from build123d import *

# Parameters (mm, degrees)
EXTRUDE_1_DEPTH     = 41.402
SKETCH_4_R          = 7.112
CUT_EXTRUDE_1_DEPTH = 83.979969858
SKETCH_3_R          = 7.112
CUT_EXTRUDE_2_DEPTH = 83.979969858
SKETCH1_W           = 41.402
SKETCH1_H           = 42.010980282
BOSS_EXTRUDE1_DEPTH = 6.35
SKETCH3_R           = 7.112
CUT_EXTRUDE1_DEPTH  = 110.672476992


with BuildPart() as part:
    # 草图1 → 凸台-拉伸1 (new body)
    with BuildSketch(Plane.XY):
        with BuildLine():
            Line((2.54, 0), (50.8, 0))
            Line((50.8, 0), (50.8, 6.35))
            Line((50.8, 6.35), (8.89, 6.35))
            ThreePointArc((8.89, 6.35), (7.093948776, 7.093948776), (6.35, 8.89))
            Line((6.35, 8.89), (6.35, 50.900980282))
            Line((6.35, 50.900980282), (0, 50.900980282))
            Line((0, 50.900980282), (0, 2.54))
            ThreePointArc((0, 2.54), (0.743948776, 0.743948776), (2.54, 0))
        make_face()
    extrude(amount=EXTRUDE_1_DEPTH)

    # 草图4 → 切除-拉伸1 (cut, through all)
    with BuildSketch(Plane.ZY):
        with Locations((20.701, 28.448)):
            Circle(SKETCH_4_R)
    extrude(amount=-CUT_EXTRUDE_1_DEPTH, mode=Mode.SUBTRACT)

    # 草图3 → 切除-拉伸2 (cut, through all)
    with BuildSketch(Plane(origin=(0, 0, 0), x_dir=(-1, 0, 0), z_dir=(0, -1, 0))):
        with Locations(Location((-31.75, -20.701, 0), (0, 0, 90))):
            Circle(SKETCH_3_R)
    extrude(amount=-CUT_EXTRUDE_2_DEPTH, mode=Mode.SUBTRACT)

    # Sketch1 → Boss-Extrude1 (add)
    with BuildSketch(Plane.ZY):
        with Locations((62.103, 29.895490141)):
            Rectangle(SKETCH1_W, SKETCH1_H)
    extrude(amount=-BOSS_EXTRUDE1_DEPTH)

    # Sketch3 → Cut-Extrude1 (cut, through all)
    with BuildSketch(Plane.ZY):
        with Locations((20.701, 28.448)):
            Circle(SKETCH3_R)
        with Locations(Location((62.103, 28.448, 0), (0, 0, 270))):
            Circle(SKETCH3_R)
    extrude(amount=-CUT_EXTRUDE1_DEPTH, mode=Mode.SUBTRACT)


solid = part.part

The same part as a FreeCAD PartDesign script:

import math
import FreeCAD as App
import Part
import Sketcher

V = App.Vector
Q = App.Units.Quantity


def add_polygon(sketch, points):
    """Adds a closed chain of lines whose ends are joined by coincident constraints."""
    first, n = sketch.GeometryCount, len(points)
    for a, b in zip(points, points[1:] + points[:1]):
        sketch.addGeometry(Part.LineSegment(App.Vector(*a, 0), App.Vector(*b, 0)), False)
    for i in range(n):
        sketch.addConstraint(Sketcher.Constraint("Coincident", first + i, 2, first + (i + 1) % n, 1))

doc = App.newDocument("Part")
body = doc.addObject("PartDesign::Body", "Body")

sketch1 = body.newObject("Sketcher::SketchObject", "Sketch")
sketch1.AttachmentSupport = (doc.getObject("XY_Plane"), [""])
sketch1.MapMode = "FlatFace"
sketch1.addGeometry([
    Part.LineSegment(V(2.5, 0, 0), V(50.8, 0, 0)),
    Part.LineSegment(V(50.8, 0, 0), V(50.8, 6.3, 0)),
    Part.LineSegment(V(50.8, 6.3, 0), V(8.9, 6.3, 0)),
    Part.ArcOfCircle(Part.Circle(V(8.9, 8.9, 0), V(0, 0, 1), 2.5), math.radians(-180), math.radians(-90)),
    Part.LineSegment(V(6.3, 8.9, 0), V(6.3, 50.9, 0)),
    Part.LineSegment(V(6.3, 50.9, 0), V(0, 50.9, 0)),
    Part.LineSegment(V(0, 50.9, 0), V(0, 2.5, 0)),
    Part.ArcOfCircle(Part.Circle(V(2.5, 2.5, 0), V(0, 0, 1), 2.5), math.radians(-180), math.radians(-90)),
], False)
sketch1.addConstraint([
    Sketcher.Constraint("Coincident", 0, 2, 1, 1),
    Sketcher.Constraint("Coincident", 1, 2, 2, 1),
    Sketcher.Constraint("Tangent", 2, 2, 3, 2),
    Sketcher.Constraint("Tangent", 3, 1, 4, 1),
    Sketcher.Constraint("Coincident", 4, 2, 5, 1),
    Sketcher.Constraint("Coincident", 5, 2, 6, 1),
    Sketcher.Constraint("Tangent", 6, 2, 7, 1),
    Sketcher.Constraint("Tangent", 7, 2, 0, 1),
    Sketcher.Constraint("Horizontal", 0),
    Sketcher.Constraint("Vertical", 1),
    Sketcher.Constraint("Horizontal", 2),
    Sketcher.Constraint("Vertical", 4),
    Sketcher.Constraint("Horizontal", 5),
    Sketcher.Constraint("Vertical", 6),
    Sketcher.Constraint("Equal", 3, 7),
    Sketcher.Constraint("PointOnObject", 0, 2, -1),
    Sketcher.Constraint("PointOnObject", 5, 2, -2),
    Sketcher.Constraint("Equal", 5, 1),
    Sketcher.Constraint("Radius", 3, Q("0.1 in")),
    Sketcher.Constraint("DistanceX", 0, 1, 0, 2, Q("1.9 in")),
    Sketcher.Constraint("DistanceX", 2, 2, 2, 1, Q("1.65 in")),
    Sketcher.Constraint("DistanceY", 4, 1, 4, 2, Q("42.01098 mm")),
])
pad1 = body.newObject("PartDesign::Pad", "Pad")
pad1.Profile = sketch1
pad1.Length = Q("1.63 in")

sketch2 = body.newObject("Sketcher::SketchObject", "Sketch001")
sketch2.AttachmentSupport = (doc.getObject("YZ_Plane"), [""])
sketch2.MapMode = "FlatFace"
sketch2.addGeometry(Part.Circle(V(28, 21, 0), V(0, 0, 1), 7), False)
sketch2.addConstraint([
    Sketcher.Constraint("Diameter", 0, Q("0.56 in")),
    Sketcher.Constraint("DistanceX", -1, 1, 0, 3, Q("1.12 in")),
    Sketcher.Constraint("DistanceY", -1, 1, 0, 3, Q("0.815 in")),
])
pocket1 = body.newObject("PartDesign::Pocket", "Pocket")
pocket1.Profile = sketch2
pocket1.Type = "ThroughAll"
pocket1.Reversed = True

sketch3 = body.newObject("Sketcher::SketchObject", "Sketch002")
sketch3.AttachmentSupport = (doc.getObject("XZ_Plane"), [""])
sketch3.MapMode = "FlatFace"
sketch3.addGeometry(Part.Circle(V(32, 21, 0), V(0, 0, 1), 7), False)
sketch3.addConstraint([
    Sketcher.Constraint("Diameter", 0, Q("0.56 in")),
    Sketcher.Constraint("DistanceX", -1, 1, 0, 3, Q("1.25 in")),
    Sketcher.Constraint("DistanceY", -1, 1, 0, 3, Q("0.815 in")),
])
pocket2 = body.newObject("PartDesign::Pocket", "Pocket001")
pocket2.Profile = sketch3
pocket2.Type = "ThroughAll"

sketch4 = body.newObject("Sketcher::SketchObject", "Sketch003")
sketch4.AttachmentSupport = (doc.getObject("YZ_Plane"), [""])
sketch4.MapMode = "FlatFace"
add_polygon(sketch4, [(51, 41), (9, 41), (9, 83), (51, 83)])
sketch4.addConstraint([
    Sketcher.Constraint("Horizontal", 0),
    Sketcher.Constraint("Vertical", 1),
    Sketcher.Constraint("Horizontal", 2),
    Sketcher.Constraint("Vertical", 3),
    Sketcher.Constraint("DistanceY", 1, 1, 1, 2, Q("1.63 in")),
    Sketcher.Constraint("DistanceX", -1, 1, 0, 2, Q("0.35 in")),
    Sketcher.Constraint("DistanceY", -1, 1, 0, 2, Q("1.63 in")),
    Sketcher.Constraint("DistanceX", 0, 2, 0, 1, Q("42.01098 mm")),
])
pad2 = body.newObject("PartDesign::Pad", "Pad001")
pad2.Profile = sketch4
pad2.Length = Q("0.25 in")

sketch5 = body.newObject("Sketcher::SketchObject", "Sketch004")
sketch5.AttachmentSupport = (doc.getObject("YZ_Plane"), [""])
sketch5.MapMode = "FlatFace"
sketch5.addGeometry([
    Part.Circle(V(28, 21, 0), V(0, 0, 1), 7),
    Part.Circle(V(28, 62, 0), V(0, 0, 1), 7),
], False)
sketch5.addConstraint([
    Sketcher.Constraint("Equal", 0, 1),
    Sketcher.Constraint("Vertical", 0, 3, 1, 3),
    Sketcher.Constraint("Diameter", 0, Q("0.56 in")),
    Sketcher.Constraint("DistanceX", -1, 1, 0, 3, Q("1.12 in")),
    Sketcher.Constraint("DistanceY", 0, 3, 1, 3, Q("1.63 in")),
    Sketcher.Constraint("DistanceY", -1, 1, 0, 3, Q("0.815 in")),
])
pocket3 = body.newObject("PartDesign::Pocket", "Pocket002")
pocket3.Profile = sketch5
pocket3.Type = "ThroughAll"
pocket3.Reversed = True

doc.recompute()
